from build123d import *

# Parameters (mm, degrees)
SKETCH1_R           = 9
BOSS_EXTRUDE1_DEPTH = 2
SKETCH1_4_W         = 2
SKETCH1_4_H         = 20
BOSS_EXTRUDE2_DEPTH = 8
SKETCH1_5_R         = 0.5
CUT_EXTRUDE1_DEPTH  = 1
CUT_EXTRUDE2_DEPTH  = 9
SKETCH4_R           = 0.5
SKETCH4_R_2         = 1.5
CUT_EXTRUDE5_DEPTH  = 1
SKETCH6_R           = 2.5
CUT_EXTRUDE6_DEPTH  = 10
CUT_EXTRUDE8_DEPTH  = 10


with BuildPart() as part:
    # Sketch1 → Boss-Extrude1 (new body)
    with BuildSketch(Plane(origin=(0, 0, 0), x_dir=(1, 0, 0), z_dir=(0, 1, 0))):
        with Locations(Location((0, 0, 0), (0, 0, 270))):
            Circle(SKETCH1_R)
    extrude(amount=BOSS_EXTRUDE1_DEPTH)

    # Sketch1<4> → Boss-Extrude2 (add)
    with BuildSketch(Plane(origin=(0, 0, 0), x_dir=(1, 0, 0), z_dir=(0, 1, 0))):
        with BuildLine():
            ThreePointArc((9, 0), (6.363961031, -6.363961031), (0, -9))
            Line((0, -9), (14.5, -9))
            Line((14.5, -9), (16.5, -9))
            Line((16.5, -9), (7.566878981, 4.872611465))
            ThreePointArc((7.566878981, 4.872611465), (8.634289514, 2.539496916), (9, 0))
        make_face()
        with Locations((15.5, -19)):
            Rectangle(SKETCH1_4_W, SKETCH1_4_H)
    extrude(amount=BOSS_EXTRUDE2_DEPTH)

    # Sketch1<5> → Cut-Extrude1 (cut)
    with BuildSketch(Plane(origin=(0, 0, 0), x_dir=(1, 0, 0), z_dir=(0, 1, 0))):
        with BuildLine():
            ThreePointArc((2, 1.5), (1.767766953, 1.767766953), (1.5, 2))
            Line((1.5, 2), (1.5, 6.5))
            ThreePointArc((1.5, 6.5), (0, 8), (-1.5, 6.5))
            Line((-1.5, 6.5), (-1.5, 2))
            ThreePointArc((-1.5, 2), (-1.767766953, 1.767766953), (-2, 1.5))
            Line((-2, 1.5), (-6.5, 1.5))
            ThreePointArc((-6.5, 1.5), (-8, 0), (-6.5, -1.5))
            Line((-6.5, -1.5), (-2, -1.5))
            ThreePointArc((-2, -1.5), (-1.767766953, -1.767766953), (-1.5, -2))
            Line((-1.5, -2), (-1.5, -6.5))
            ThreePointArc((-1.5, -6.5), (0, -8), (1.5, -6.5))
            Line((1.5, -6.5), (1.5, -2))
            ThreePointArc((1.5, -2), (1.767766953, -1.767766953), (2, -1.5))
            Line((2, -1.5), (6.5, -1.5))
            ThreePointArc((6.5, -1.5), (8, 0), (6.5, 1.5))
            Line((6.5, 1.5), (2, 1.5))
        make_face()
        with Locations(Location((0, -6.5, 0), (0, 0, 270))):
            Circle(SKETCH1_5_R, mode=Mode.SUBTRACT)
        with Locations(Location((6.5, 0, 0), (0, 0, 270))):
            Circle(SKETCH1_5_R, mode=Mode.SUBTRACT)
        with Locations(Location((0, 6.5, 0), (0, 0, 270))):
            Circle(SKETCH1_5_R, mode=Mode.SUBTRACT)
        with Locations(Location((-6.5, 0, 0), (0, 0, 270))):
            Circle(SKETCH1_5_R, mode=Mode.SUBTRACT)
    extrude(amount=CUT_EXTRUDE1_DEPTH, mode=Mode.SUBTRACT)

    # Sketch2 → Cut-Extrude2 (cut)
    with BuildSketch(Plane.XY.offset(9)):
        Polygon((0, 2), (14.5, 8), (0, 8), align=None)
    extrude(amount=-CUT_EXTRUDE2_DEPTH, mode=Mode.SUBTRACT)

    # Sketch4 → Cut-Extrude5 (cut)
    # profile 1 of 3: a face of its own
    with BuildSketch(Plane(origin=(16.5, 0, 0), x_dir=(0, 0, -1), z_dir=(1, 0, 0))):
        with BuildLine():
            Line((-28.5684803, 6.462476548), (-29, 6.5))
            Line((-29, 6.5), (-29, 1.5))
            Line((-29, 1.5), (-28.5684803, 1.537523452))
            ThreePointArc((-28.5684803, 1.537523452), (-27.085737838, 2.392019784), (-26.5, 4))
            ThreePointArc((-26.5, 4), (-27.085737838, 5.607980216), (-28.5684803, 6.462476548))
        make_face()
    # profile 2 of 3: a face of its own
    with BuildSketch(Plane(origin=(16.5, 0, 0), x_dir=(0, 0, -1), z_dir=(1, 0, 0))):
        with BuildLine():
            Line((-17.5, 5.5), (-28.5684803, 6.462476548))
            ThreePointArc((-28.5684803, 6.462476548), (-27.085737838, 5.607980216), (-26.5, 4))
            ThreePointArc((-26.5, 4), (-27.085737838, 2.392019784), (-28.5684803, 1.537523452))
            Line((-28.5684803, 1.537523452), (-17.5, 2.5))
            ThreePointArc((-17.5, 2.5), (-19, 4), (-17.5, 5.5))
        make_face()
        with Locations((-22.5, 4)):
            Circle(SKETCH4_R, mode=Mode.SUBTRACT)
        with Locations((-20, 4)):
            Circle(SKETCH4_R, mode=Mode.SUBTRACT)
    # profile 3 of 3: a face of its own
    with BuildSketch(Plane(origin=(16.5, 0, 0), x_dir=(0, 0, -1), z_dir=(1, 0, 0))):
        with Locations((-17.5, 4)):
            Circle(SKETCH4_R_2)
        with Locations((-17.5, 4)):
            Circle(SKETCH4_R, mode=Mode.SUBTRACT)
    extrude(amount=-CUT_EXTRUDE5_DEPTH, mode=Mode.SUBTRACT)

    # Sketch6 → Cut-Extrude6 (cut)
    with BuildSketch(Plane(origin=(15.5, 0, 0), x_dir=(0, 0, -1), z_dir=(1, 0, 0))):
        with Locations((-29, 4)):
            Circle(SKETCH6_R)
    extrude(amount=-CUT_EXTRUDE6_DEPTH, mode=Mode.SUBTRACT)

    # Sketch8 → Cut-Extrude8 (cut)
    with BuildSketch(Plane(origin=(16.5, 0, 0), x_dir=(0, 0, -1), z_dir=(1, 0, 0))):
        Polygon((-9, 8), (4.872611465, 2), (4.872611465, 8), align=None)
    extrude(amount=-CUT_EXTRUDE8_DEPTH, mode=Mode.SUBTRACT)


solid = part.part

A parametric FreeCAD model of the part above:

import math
import FreeCAD as App
import Part
import Sketcher
from FreeCAD import Vector
Q = App.Units.Quantity

doc = App.newDocument("Part")
body = doc.addObject("PartDesign::Body", "Body")

# Sketch on XZ plane
sketch1 = body.newObject("Sketcher::SketchObject", "Sketch")
sketch1.AttachmentSupport = (doc.getObject("XZ_Plane"), [""])
sketch1.MapMode = "FlatFace"
sketch1.addGeometry(Part.Circle(Vector(0, 0, 0), Vector(0, 0, 1), 9), False)
sketch1.addConstraint(Sketcher.Constraint("Coincident", 0, 3, -1, 1))
sketch1.addConstraint(Sketcher.Constraint("Diameter", 0, Q("18 mm")))
pad1 = body.newObject("PartDesign::Pad", "Pad")
pad1.Profile = sketch1
pad1.Length = 2
pad1.Reversed = True

# Sketch on XZ plane
sketch2 = body.newObject("Sketcher::SketchObject", "Sketch001")
sketch2.AttachmentSupport = (doc.getObject("XZ_Plane"), [""])
sketch2.MapMode = "FlatFace"
sketch2.addGeometry(Part.ArcOfCircle(Part.Circle(Vector(0, 0, 0), Vector(0, 0, 1), 9), math.radians(0), math.radians(90)), False)
sketch2.addGeometry(Part.LineSegment(Vector(0, 9, 0), Vector(14.5, 9, 0)), False)
sketch2.addGeometry(Part.LineSegment(Vector(14.5, 9, 0), Vector(14.5, 29, 0)), False)
sketch2.addGeometry(Part.LineSegment(Vector(14.5, 29, 0), Vector(16.5, 29, 0)), False)
sketch2.addGeometry(Part.LineSegment(Vector(16.5, 29, 0), Vector(16.5, 9, 0)), False)
sketch2.addGeometry(Part.LineSegment(Vector(16.5, 9, 0), Vector(7.566879, -4.872611, 0)), False)
sketch2.addGeometry(Part.ArcOfCircle(Part.Circle(Vector(0, 0, 0), Vector(0, 0, 1), 9), math.radians(-32.779081), math.radians(0)), False)
sketch2.addConstraint(Sketcher.Constraint("Tangent", 0, 2, 1, 1))
sketch2.addConstraint(Sketcher.Constraint("Coincident", 1, 2, 2, 1))
sketch2.addConstraint(Sketcher.Constraint("Coincident", 2, 2, 3, 1))
sketch2.addConstraint(Sketcher.Constraint("Coincident", 3, 2, 4, 1))
sketch2.addConstraint(Sketcher.Constraint("Coincident", 4, 2, 5, 1))
sketch2.addConstraint(Sketcher.Constraint("Tangent", 5, 2, 6, 1))
sketch2.addConstraint(Sketcher.Constraint("Tangent", 6, 2, 0, 1))
sketch2.addConstraint(Sketcher.Constraint("Horizontal", 1))
sketch2.addConstraint(Sketcher.Constraint("Vertical", 2))
sketch2.addConstraint(Sketcher.Constraint("Horizontal", 3))
sketch2.addConstraint(Sketcher.Constraint("Vertical", 4))
sketch2.addConstraint(Sketcher.Constraint("Coincident", 0, 3, -1, 1))
sketch2.addConstraint(Sketcher.Constraint("Equal", 0, 6))
sketch2.addConstraint(Sketcher.Constraint("PointOnObject", 6, 2, -1))
sketch2.addConstraint(Sketcher.Constraint("Horizontal", 1, 2, 4, 2))
sketch2.addConstraint(Sketcher.Constraint("Radius", 0, Q("9 mm")))
sketch2.addConstraint(Sketcher.Constraint("DistanceX", 3, 1, 3, 2, Q("2 mm")))
sketch2.addConstraint(Sketcher.Constraint("DistanceY", 2, 1, 2, 2, Q("20 mm")))
sketch2.addConstraint(Sketcher.Constraint("DistanceX", 1, 1, 1, 2, Q("14.5 mm")))
pad2 = body.newObject("PartDesign::Pad", "Pad001")
pad2.Profile = sketch2
pad2.Length = 8
pad2.Reversed = True

# Sketch on XZ plane
sketch3 = body.newObject("Sketcher::SketchObject", "Sketch002")
sketch3.AttachmentSupport = (doc.getObject("XZ_Plane"), [""])
sketch3.MapMode = "FlatFace"
sketch3.addGeometry(Part.ArcOfCircle(Part.Circle(Vector(0, 0, 0), Vector(0, 0, 1), 2.5), math.radians(-53.130102), math.radians(-36.869898)), False)
sketch3.addGeometry(Part.LineSegment(Vector(1.5, -2, 0), Vector(1.5, -6.5, 0)), False)
sketch3.addGeometry(Part.ArcOfCircle(Part.Circle(Vector(0, -6.5, 0), Vector(0, 0, 1), 1.5), math.radians(180), math.radians(360)), False)
sketch3.addGeometry(Part.LineSegment(Vector(-1.5, -6.5, 0), Vector(-1.5, -2, 0)), False)
sketch3.addGeometry(Part.ArcOfCircle(Part.Circle(Vector(0, 0, 0), Vector(0, 0, 1), 2.5), math.radians(-143.130102), math.radians(-126.869898)), False)
sketch3.addGeometry(Part.LineSegment(Vector(-2, -1.5, 0), Vector(-6.5, -1.5, 0)), False)
sketch3.addGeometry(Part.ArcOfCircle(Part.Circle(Vector(-6.5, 0, 0), Vector(0, 0, 1), 1.5), math.radians(90), math.radians(270)), False)
sketch3.addGeometry(Part.LineSegment(Vector(-6.5, 1.5, 0), Vector(-2, 1.5, 0)), False)
sketch3.addGeometry(Part.ArcOfCircle(Part.Circle(Vector(0, 0, 0), Vector(0, 0, 1), 2.5), math.radians(126.869898), math.radians(143.130102)), False)
sketch3.addGeometry(Part.LineSegment(Vector(-1.5, 2, 0), Vector(-1.5, 6.5, 0)), False)
sketch3.addGeometry(Part.ArcOfCircle(Part.Circle(Vector(0, 6.5, 0), Vector(0, 0, 1), 1.5), math.radians(0), math.radians(180)), False)
sketch3.addGeometry(Part.LineSegment(Vector(1.5, 6.5, 0), Vector(1.5, 2, 0)), False)
sketch3.addGeometry(Part.ArcOfCircle(Part.Circle(Vector(0, 0, 0), Vector(0, 0, 1), 2.5), math.radians(36.869898), math.radians(53.130102)), False)
sketch3.addGeometry(Part.LineSegment(Vector(2, 1.5, 0), Vector(6.5, 1.5, 0)), False)
sketch3.addGeometry(Part.ArcOfCircle(Part.Circle(Vector(6.5, 0, 0), Vector(0, 0, 1), 1.5), math.radians(-90), math.radians(90)), False)
sketch3.addGeometry(Part.LineSegment(Vector(6.5, -1.5, 0), Vector(2, -1.5, 0)), False)
sketch3.addGeometry(Part.Circle(Vector(0, 6.5, 0), Vector(0, 0, 1), 0.5), False)
sketch3.addGeometry(Part.Circle(Vector(-6.5, 0, 0), Vector(0, 0, 1), 0.5), False)
sketch3.addGeometry(Part.Circle(Vector(6.5, 0, 0), Vector(0, 0, 1), 0.5), False)
sketch3.addGeometry(Part.Circle(Vector(0, -6.5, 0), Vector(0, 0, 1), 0.5), False)
sketch3.addConstraint(Sketcher.Constraint("Coincident", 0, 1, 1, 1))
sketch3.addConstraint(Sketcher.Constraint("Tangent", 1, 2, 2, 2))
sketch3.addConstraint(Sketcher.Constraint("Tangent", 2, 1, 3, 1))
sketch3.addConstraint(Sketcher.Constraint("Coincident", 3, 2, 4, 2))
sketch3.addConstraint(Sketcher.Constraint("Coincident", 4, 1, 5, 1))
sketch3.addConstraint(Sketcher.Constraint("Tangent", 5, 2, 6, 2))
sketch3.addConstraint(Sketcher.Constraint("Tangent", 6, 1, 7, 1))
sketch3.addConstraint(Sketcher.Constraint("Coincident", 7, 2, 8, 2))
sketch3.addConstraint(Sketcher.Constraint("Coincident", 8, 1, 9, 1))
sketch3.addConstraint(Sketcher.Constraint("Tangent", 9, 2, 10, 2))
sketch3.addConstraint(Sketcher.Constraint("Tangent", 10, 1, 11, 1))
sketch3.addConstraint(Sketcher.Constraint("Coincident", 11, 2, 12, 2))
sketch3.addConstraint(Sketcher.Constraint("Coincident", 12, 1, 13, 1))
sketch3.addConstraint(Sketcher.Constraint("Tangent", 13, 2, 14, 2))
sketch3.addConstraint(Sketcher.Constraint("Tangent", 14, 1, 15, 1))
sketch3.addConstraint(Sketcher.Constraint("Coincident", 15, 2, 0, 2))
sketch3.addConstraint(Sketcher.Constraint("Vertical", 1))
sketch3.addConstraint(Sketcher.Constraint("Vertical", 3))
sketch3.addConstraint(Sketcher.Constraint("Horizontal", 5))
sketch3.addConstraint(Sketcher.Constraint("Horizontal", 7))
sketch3.addConstraint(Sketcher.Constraint("Vertical", 9))
sketch3.addConstraint(Sketcher.Constraint("Vertical", 11))
sketch3.addConstraint(Sketcher.Constraint("Horizontal", 13))
sketch3.addConstraint(Sketcher.Constraint("Horizontal", 15))
sketch3.addConstraint(Sketcher.Constraint("Coincident", 0, 3, -1, 1))
sketch3.addConstraint(Sketcher.Constraint("Coincident", 4, 3, -1, 1))
sketch3.addConstraint(Sketcher.Constraint("Coincident", 8, 3, -1, 1))
sketch3.addConstraint(Sketcher.Constraint("Coincident", 12, 3, -1, 1))
sketch3.addConstraint(Sketcher.Constraint("Coincident", 16, 3, 10, 3))
sketch3.addConstraint(Sketcher.Constraint("Coincident", 17, 3, 6, 3))
sketch3.addConstraint(Sketcher.Constraint("Coincident", 18, 3, 14, 3))
sketch3.addConstraint(Sketcher.Constraint("Coincident", 19, 3, 2, 3))
sketch3.addConstraint(Sketcher.Constraint("Equal", 0, 4))
sketch3.addConstraint(Sketcher.Constraint("Equal", 2, 6))
sketch3.addConstraint(Sketcher.Constraint("Equal", 4, 8))
sketch3.addConstraint(Sketcher.Constraint("Equal", 6, 10))
sketch3.addConstraint(Sketcher.Constraint("Equal", 8, 12))
sketch3.addConstraint(Sketcher.Constraint("Equal", 10, 14))
sketch3.addConstraint(Sketcher.Constraint("Equal", 16, 17))
sketch3.addConstraint(Sketcher.Constraint("Equal", 17, 18))
sketch3.addConstraint(Sketcher.Constraint("Equal", 18, 19))
sketch3.addConstraint(Sketcher.Constraint("Symmetric", 2, 3, 10, 3, -1, 1))
sketch3.addConstraint(Sketcher.Constraint("Symmetric", 6, 3, 14, 3, -1, 1))
sketch3.addConstraint(Sketcher.Constraint("PointOnObject", 2, 3, -2))
sketch3.addConstraint(Sketcher.Constraint("PointOnObject", 6, 3, -1))
sketch3.addConstraint(Sketcher.Constraint("Equal", 15, 1))
sketch3.addConstraint(Sketcher.Constraint("Diameter", 16, Q("1 mm")))
sketch3.addConstraint(Sketcher.Constraint("Radius", 0, Q("2.5 mm")))
sketch3.addConstraint(Sketcher.Constraint("Radius", 2, Q("1.5 mm")))
sketch3.addConstraint(Sketcher.Constraint("DistanceX", 5, 2, 5, 1, Q("4.5 mm")))
pocket1 = body.newObject("PartDesign::Pocket", "Pocket")
pocket1.Profile = sketch3
pocket1.Length = 1

# Sketch on XY plane
sketch4 = body.newObject("Sketcher::SketchObject", "Sketch003")
sketch4.AttachmentSupport = (doc.getObject("XY_Plane"), [""])
sketch4.MapMode = "FlatFace"
sketch4.AttachmentOffset = App.Placement(Vector(0, 0, 9), App.Rotation())
sketch4.addGeometry(Part.LineSegment(Vector(0, 2, 0), Vector(14.5, 8, 0)), False)
sketch4.addGeometry(Part.LineSegment(Vector(14.5, 8, 0), Vector(0, 8, 0)), False)
sketch4.addGeometry(Part.LineSegment(Vector(0, 8, 0), Vector(0, 2, 0)), False)
sketch4.addConstraint(Sketcher.Constraint("Coincident", 0, 2, 1, 1))
sketch4.addConstraint(Sketcher.Constraint("Coincident", 1, 2, 2, 1))
sketch4.addConstraint(Sketcher.Constraint("Coincident", 2, 2, 0, 1))
sketch4.addConstraint(Sketcher.Constraint("Horizontal", 1))
sketch4.addConstraint(Sketcher.Constraint("Vertical", 2))
sketch4.addConstraint(Sketcher.Constraint("PointOnObject", 1, 2, -2))
sketch4.addConstraint(Sketcher.Constraint("DistanceY", 2, 2, 2, 1, Q("6 mm")))
sketch4.addConstraint(Sketcher.Constraint("DistanceX", 1, 2, 1, 1, Q("14.5 mm")))
sketch4.addConstraint(Sketcher.Constraint("DistanceY", -1, 1, 0, 2, Q("8 mm")))
pocket2 = body.newObject("PartDesign::Pocket", "Pocket001")
pocket2.Profile = sketch4
pocket2.Length = 9

# Sketch on YZ plane
sketch5 = body.newObject("Sketcher::SketchObject", "Sketch004")
sketch5.AttachmentSupport = (doc.getObject("YZ_Plane"), [""])
sketch5.MapMode = "FlatFace"
sketch5.AttachmentOffset = App.Placement(Vector(0, 0, 16.5), App.Rotation())
sketch5.addGeometry(Part.LineSegment(Vector(6.462477, 28.56848, 0), Vector(6.5, 29, 0)), False)
sketch5.addGeometry(Part.LineSegment(Vector(6.5, 29, 0), Vector(1.5, 29, 0)), False)
sketch5.addGeometry(Part.LineSegment(Vector(1.5, 29, 0), Vector(1.537523, 28.56848, 0)), False)
sketch5.addGeometry(Part.LineSegment(Vector(1.537523, 28.56848, 0), Vector(2.5, 17.5, 0)), False)
sketch5.addGeometry(Part.ArcOfCircle(Part.Circle(Vector(4, 17.5, 0), Vector(0, 0, 1), 1.5), math.radians(180), math.radians(360)), False)
sketch5.addGeometry(Part.LineSegment(Vector(5.5, 17.5, 0), Vector(6.462477, 28.56848, 0)), False)
sketch5.addGeometry(Part.Circle(Vector(4, 22.5, 0), Vector(0, 0, 1), 0.5), False)
sketch5.addGeometry(Part.Circle(Vector(4, 20, 0), Vector(0, 0, 1), 0.5), False)
sketch5.addGeometry(Part.Circle(Vector(4, 17.5, 0), Vector(0, 0, 1), 0.5), False)
sketch5.addConstraint(Sketcher.Constraint("Coincident", 0, 2, 1, 1))
sketch5.addConstraint(Sketcher.Constraint("Coincident", 1, 2, 2, 1))
sketch5.addConstraint(Sketcher.Constraint("Coincident", 2, 2, 3, 1))
sketch5.addConstraint(Sketcher.Constraint("Coincident", 3, 2, 4, 1))
sketch5.addConstraint(Sketcher.Constraint("Coincident", 4, 2, 5, 1))
sketch5.addConstraint(Sketcher.Constraint("Coincident", 5, 2, 0, 1))
sketch5.addConstraint(Sketcher.Constraint("Horizontal", 1))
sketch5.addConstraint(Sketcher.Constraint("Coincident", 8, 3, 4, 3))
sketch5.addConstraint(Sketcher.Constraint("Equal", 6, 7))
sketch5.addConstraint(Sketcher.Constraint("Equal", 7, 8))
sketch5.addConstraint(Sketcher.Constraint("Parallel", 2, 3))
sketch5.addConstraint(Sketcher.Constraint("Parallel", 0, 5))
sketch5.addConstraint(Sketcher.Constraint("Horizontal", 8, 3, 3, 2))
sketch5.addConstraint(Sketcher.Constraint("Horizontal", 3, 2, 4, 2))
sketch5.addConstraint(Sketcher.Constraint("Horizontal", 2, 2, 5, 2))
sketch5.addConstraint(Sketcher.Constraint("Vertical", 4, 3, 6, 3))
sketch5.addConstraint(Sketcher.Constraint("Vertical", 6, 3, 7, 3))
sketch5.addConstraint(Sketcher.Constraint("Equal", 3, 5))
sketch5.addConstraint(Sketcher.Constraint("Diameter", 6, Q("1 mm")))
sketch5.addConstraint(Sketcher.Constraint("Radius", 4, Q("1.5 mm")))
sketch5.addConstraint(Sketcher.Constraint("DistanceX", 1, 2, 1, 1, Q("5 mm")))
sketch5.addConstraint(Sketcher.Constraint("DistanceX", -1, 1, 4, 3, Q("4 mm")))
sketch5.addConstraint(Sketcher.Constraint("DistanceY", -1, 1, 7, 3, Q("20 mm")))
sketch5.addConstraint(Sketcher.Constraint("DistanceY", -1, 1, 0, 2, Q("29 mm")))
sketch5.addConstraint(Sketcher.Constraint("DistanceY", 4, 3, 6, 3, Q("5 mm")))
sketch5.addConstraint(Sketcher.Constraint("DistanceY", -1, 1, 4, 3, Q("17.5 mm")))
sketch5.addConstraint(Sketcher.Constraint("Distance", 0, Q("0.433148 mm")))
pocket3 = body.newObject("PartDesign::Pocket", "Pocket002")
pocket3.Profile = sketch5
pocket3.Length = 1

# Sketch on YZ plane
sketch6 = body.newObject("Sketcher::SketchObject", "Sketch005")
sketch6.AttachmentSupport = (doc.getObject("YZ_Plane"), [""])
sketch6.MapMode = "FlatFace"
sketch6.AttachmentOffset = App.Placement(Vector(0, 0, 15.5), App.Rotation())
sketch6.addGeometry(Part.Circle(Vector(4, 29, 0), Vector(0, 0, 1), 2.5), False)
sketch6.addConstraint(Sketcher.Constraint("Diameter", 0, Q("5 mm")))
sketch6.addConstraint(Sketcher.Constraint("DistanceX", -1, 1, 0, 3, Q("4 mm")))
sketch6.addConstraint(Sketcher.Constraint("DistanceY", -1, 1, 0, 3, Q("29 mm")))
pocket4 = body.newObject("PartDesign::Pocket", "Pocket003")
pocket4.Profile = sketch6
pocket4.Length = 10

# Sketch on YZ plane
sketch7 = body.newObject("Sketcher::SketchObject", "Sketch006")
sketch7.AttachmentSupport = (doc.getObject("YZ_Plane"), [""])
sketch7.MapMode = "FlatFace"
sketch7.AttachmentOffset = App.Placement(Vector(0, 0, 16.5), App.Rotation())
sketch7.addGeometry(Part.LineSegment(Vector(8, 9, 0), Vector(2, -4.872611, 0)), False)
sketch7.addGeometry(Part.LineSegment(Vector(2, -4.872611, 0), Vector(8, -4.872611, 0)), False)
sketch7.addGeometry(Part.LineSegment(Vector(8, -4.872611, 0), Vector(8, 9, 0)), False)
sketch7.addConstraint(Sketcher.Constraint("Coincident", 0, 2, 1, 1))
sketch7.addConstraint(Sketcher.Constraint("Coincident", 1, 2, 2, 1))
sketch7.addConstraint(Sketcher.Constraint("Coincident", 2, 2, 0, 1))
sketch7.addConstraint(Sketcher.Constraint("Horizontal", 1))
sketch7.addConstraint(Sketcher.Constraint("Vertical", 2))
sketch7.addConstraint(Sketcher.Constraint("DistanceX", 1, 1, 1, 2, Q("6 mm")))
sketch7.addConstraint(Sketcher.Constraint("DistanceX", -1, 1, 0, 2, Q("2 mm")))
sketch7.addConstraint(Sketcher.Constraint("DistanceY", -1, 1, 2, 2, Q("9 mm")))
sketch7.addConstraint(Sketcher.Constraint("DistanceY", 2, 1, 2, 2, Q("13.872611 mm")))
pocket5 = body.newObject("PartDesign::Pocket", "Pocket004")
pocket5.Profile = sketch7
pocket5.Length = 10

doc.recompute()
